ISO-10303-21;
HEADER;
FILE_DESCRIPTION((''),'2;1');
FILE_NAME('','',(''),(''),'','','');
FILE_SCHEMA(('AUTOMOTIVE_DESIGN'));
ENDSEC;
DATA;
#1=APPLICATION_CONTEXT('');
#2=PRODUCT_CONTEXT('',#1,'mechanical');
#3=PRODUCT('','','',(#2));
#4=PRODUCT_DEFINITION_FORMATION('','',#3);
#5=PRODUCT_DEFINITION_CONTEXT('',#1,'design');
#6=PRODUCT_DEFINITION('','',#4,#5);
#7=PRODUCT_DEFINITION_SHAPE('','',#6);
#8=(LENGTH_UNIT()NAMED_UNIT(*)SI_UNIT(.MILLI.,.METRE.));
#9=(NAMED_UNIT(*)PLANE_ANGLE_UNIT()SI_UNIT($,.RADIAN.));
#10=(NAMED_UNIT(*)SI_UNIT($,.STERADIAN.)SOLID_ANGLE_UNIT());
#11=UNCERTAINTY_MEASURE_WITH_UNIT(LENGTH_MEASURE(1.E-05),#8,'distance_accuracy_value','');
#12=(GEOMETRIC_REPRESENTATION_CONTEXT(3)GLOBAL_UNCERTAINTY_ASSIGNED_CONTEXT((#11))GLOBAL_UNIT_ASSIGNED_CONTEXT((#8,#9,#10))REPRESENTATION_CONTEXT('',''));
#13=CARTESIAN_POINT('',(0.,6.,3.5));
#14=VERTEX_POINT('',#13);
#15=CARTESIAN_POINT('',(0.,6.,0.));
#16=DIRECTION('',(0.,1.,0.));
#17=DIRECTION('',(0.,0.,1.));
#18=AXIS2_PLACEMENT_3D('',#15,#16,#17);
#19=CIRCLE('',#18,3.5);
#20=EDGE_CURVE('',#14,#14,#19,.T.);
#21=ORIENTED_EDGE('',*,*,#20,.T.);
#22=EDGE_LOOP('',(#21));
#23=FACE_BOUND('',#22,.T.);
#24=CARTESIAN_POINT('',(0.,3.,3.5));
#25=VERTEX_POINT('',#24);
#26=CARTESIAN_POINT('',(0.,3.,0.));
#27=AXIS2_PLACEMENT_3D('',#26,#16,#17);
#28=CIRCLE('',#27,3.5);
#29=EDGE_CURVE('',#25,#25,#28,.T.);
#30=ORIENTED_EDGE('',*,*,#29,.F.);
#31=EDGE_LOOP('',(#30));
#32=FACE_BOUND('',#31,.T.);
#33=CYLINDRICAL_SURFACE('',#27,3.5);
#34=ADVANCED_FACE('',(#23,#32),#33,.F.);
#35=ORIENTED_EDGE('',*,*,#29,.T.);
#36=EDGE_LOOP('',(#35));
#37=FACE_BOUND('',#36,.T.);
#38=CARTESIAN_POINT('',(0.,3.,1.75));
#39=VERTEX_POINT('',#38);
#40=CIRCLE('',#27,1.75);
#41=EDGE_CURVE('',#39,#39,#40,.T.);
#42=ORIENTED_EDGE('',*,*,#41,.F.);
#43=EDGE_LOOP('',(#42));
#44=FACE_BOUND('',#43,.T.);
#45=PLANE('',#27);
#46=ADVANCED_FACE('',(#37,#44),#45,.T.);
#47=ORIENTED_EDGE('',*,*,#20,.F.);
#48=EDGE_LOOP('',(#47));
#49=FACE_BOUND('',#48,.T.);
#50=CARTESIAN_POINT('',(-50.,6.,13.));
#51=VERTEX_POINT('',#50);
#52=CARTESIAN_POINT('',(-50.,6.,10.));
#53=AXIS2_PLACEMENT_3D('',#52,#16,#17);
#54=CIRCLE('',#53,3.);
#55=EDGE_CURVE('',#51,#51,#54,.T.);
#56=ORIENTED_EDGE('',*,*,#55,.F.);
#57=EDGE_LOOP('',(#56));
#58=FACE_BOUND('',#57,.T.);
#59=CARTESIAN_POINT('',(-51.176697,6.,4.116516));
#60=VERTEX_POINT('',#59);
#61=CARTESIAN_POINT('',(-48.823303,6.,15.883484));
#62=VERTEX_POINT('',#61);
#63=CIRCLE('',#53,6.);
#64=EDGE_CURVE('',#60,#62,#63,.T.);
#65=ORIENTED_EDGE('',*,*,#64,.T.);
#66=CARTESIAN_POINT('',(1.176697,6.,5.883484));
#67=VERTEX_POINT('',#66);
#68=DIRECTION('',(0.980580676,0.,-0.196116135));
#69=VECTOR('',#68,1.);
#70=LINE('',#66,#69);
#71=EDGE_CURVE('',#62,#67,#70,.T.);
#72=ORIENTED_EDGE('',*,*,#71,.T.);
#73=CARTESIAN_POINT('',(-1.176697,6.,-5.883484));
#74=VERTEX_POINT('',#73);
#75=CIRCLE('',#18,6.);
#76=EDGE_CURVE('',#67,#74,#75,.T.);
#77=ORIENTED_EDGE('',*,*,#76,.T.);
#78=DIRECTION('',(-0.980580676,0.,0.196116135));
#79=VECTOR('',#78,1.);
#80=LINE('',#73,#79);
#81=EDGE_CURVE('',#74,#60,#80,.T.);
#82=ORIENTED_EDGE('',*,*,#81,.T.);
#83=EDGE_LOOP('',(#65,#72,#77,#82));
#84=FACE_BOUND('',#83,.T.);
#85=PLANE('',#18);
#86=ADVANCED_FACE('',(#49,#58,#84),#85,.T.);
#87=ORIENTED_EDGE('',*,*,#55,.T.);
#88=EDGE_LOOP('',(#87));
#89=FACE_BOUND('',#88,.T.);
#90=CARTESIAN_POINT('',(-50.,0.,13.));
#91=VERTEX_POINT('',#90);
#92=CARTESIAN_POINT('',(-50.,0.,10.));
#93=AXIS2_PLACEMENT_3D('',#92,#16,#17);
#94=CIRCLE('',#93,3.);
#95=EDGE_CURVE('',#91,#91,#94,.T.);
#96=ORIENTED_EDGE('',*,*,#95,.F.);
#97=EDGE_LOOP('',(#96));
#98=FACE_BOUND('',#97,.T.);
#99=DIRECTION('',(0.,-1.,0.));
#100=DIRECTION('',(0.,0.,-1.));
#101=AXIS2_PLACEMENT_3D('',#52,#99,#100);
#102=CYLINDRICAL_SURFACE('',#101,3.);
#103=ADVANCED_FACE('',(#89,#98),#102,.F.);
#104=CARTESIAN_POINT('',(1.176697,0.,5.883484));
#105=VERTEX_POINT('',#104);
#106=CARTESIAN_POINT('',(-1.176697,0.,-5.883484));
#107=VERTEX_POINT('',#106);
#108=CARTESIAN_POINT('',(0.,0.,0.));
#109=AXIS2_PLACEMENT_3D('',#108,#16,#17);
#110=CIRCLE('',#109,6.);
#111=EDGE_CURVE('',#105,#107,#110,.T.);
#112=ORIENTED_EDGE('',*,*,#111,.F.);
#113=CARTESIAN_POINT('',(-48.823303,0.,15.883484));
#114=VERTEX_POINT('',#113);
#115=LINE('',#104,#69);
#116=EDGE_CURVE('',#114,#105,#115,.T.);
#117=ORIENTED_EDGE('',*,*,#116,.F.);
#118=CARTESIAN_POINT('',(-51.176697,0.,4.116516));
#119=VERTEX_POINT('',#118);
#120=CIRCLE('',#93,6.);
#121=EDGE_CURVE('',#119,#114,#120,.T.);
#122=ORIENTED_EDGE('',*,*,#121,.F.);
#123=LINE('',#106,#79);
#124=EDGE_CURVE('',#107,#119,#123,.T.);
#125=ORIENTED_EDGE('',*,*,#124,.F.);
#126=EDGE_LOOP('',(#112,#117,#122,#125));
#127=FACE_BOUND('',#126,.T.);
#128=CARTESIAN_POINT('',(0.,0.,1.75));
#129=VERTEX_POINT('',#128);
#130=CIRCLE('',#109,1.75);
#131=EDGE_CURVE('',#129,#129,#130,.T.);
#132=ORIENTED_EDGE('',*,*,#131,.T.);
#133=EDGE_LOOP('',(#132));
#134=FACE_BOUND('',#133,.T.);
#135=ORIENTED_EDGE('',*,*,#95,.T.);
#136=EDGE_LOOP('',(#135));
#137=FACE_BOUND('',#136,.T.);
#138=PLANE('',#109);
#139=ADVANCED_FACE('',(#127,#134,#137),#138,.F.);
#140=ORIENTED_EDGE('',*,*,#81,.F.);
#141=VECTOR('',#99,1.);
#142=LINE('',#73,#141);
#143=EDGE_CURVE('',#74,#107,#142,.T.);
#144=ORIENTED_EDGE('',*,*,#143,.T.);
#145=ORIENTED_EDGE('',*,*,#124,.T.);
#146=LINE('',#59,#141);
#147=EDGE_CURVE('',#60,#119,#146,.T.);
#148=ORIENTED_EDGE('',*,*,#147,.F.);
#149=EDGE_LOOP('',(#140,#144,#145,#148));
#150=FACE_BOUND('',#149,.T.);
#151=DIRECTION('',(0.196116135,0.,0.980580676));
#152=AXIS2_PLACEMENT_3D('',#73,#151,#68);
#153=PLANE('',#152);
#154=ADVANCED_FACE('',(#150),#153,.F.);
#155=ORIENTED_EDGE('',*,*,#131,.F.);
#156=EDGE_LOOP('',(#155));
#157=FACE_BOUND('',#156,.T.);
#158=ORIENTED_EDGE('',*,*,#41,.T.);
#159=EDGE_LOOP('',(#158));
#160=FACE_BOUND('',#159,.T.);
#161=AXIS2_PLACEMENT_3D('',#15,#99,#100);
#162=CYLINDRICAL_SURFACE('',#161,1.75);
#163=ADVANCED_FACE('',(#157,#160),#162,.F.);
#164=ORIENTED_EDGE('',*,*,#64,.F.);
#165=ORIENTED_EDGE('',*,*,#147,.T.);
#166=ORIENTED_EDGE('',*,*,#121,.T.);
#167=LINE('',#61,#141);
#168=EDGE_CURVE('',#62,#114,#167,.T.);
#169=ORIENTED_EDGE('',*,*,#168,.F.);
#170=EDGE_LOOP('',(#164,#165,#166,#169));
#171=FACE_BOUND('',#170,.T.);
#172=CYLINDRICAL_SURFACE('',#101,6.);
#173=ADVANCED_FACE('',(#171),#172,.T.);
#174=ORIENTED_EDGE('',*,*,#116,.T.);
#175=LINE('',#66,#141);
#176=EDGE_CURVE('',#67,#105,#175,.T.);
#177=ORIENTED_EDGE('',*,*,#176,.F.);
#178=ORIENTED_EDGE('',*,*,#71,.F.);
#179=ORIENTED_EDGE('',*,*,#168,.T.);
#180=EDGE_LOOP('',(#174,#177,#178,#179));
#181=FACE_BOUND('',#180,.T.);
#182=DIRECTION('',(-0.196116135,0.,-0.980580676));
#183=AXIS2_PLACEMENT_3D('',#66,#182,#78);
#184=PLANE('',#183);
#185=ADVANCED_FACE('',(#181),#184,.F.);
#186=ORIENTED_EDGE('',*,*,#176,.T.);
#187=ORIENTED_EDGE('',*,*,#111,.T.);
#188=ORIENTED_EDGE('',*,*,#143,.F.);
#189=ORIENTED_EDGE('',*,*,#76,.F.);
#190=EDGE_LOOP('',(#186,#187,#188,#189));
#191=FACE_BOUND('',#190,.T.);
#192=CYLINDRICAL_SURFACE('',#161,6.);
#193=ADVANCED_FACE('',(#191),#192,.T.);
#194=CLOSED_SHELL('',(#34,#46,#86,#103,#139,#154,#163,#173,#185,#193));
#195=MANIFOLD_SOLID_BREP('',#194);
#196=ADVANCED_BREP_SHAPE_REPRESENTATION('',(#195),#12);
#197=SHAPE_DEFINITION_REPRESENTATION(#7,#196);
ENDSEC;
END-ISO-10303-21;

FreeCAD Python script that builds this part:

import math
import FreeCAD as App
import Part
import Sketcher

doc = App.newDocument("Part")
params = doc.addObject("Spreadsheet::Sheet", "Params")
for row, (alias, value) in enumerate([
    ("sketch1_diameter", "6 mm"),
    ("sketch1_radius", "6 mm"),
    ("sketch1_diameter2", "3.5 mm"),
    ("pad1_length", "6 mm"),
    ("sketch2_diameter", "7 mm"),
    ("pocket1_length", "3 mm"),
], start=1):
    params.set(f"A{row}", alias)
    params.set(f"B{row}", "=" + value)
    params.setAlias(f"B{row}", alias)

body = doc.addObject("PartDesign::Body", "Body")

# Sketch on XZ plane
sketch1 = body.newObject("Sketcher::SketchObject", "Sketch")
sketch1.AttachmentSupport = (doc.getObject("XZ_Plane"), [""])
sketch1.MapMode = "FlatFace"
sketch1.addGeometry(Part.LineSegment(App.Vector(-48.8, 15.9, 0), App.Vector(1.2, 5.9, 0)), False)
sketch1.addGeometry(Part.ArcOfCircle(Part.Circle(App.Vector(0, 0, 0), App.Vector(0, 0, 1), 6), math.radians(-101), math.radians(79)), False)
sketch1.addGeometry(Part.LineSegment(App.Vector(-1.2, -5.9, 0), App.Vector(-51.2, 4.1, 0)), False)
sketch1.addGeometry(Part.ArcOfCircle(Part.Circle(App.Vector(-50, 10, 0), App.Vector(0, 0, 1), 6), math.radians(79), math.radians(259)), False)
sketch1.addGeometry(Part.Circle(App.Vector(-50, 10, 0), App.Vector(0, 0, 1), 3), False)
sketch1.addGeometry(Part.Circle(App.Vector(0, 0, 0), App.Vector(0, 0, 1), 1.8), False)
sketch1.addConstraint(Sketcher.Constraint("Tangent", 0, 2, 1, 2))
sketch1.addConstraint(Sketcher.Constraint("Tangent", 1, 1, 2, 1))
sketch1.addConstraint(Sketcher.Constraint("Tangent", 2, 2, 3, 2))
sketch1.addConstraint(Sketcher.Constraint("Tangent", 3, 1, 0, 1))
sketch1.addConstraint(Sketcher.Constraint("Coincident", 1, 3, -1, 1))
sketch1.addConstraint(Sketcher.Constraint("Coincident", 5, 3, -1, 1))
sketch1.addConstraint(Sketcher.Constraint("Coincident", 4, 3, 3, 3))
sketch1.addConstraint(Sketcher.Constraint("Equal", 1, 3))
sketch1.addConstraint(Sketcher.Constraint("Diameter", 4, 6.0))
sketch1.addConstraint(Sketcher.Constraint("Radius", 1, 6.0))
sketch1.addConstraint(Sketcher.Constraint("Diameter", 5, 3.5))
sketch1.addConstraint(Sketcher.Constraint("DistanceX", 3, 3, -1, 1, 50.0))
sketch1.addConstraint(Sketcher.Constraint("DistanceY", -1, 1, 3, 3, 10.0))
sketch1.setExpression("Constraints[8]", "Params.sketch1_diameter")
sketch1.setExpression("Constraints[9]", "Params.sketch1_radius")
sketch1.setExpression("Constraints[10]", "Params.sketch1_diameter2")
pad1 = body.newObject("PartDesign::Pad", "Pad")
pad1.Profile = sketch1
pad1.setExpression("Length", "Params.pad1_length")
pad1.Reversed = True

# Sketch on XZ plane
sketch2 = body.newObject("Sketcher::SketchObject", "Sketch001")
sketch2.AttachmentSupport = (doc.getObject("XZ_Plane"), [""])
sketch2.MapMode = "FlatFace"
sketch2.AttachmentOffset = App.Placement(App.Vector(0, 0, -6), App.Rotation())
sketch2.addGeometry(Part.Circle(App.Vector(0, 0, 0), App.Vector(0, 0, 1), 3.5), False)
sketch2.addConstraint(Sketcher.Constraint("Coincident", 0, 3, -1, 1))
sketch2.addConstraint(Sketcher.Constraint("Diameter", 0, 7.0))
sketch2.setExpression("Constraints[1]", "Params.sketch2_diameter")
pocket1 = body.newObject("PartDesign::Pocket", "Pocket")
pocket1.Profile = sketch2
pocket1.setExpression("Length", "Params.pocket1_length")
pocket1.Reversed = True

doc.recompute()
